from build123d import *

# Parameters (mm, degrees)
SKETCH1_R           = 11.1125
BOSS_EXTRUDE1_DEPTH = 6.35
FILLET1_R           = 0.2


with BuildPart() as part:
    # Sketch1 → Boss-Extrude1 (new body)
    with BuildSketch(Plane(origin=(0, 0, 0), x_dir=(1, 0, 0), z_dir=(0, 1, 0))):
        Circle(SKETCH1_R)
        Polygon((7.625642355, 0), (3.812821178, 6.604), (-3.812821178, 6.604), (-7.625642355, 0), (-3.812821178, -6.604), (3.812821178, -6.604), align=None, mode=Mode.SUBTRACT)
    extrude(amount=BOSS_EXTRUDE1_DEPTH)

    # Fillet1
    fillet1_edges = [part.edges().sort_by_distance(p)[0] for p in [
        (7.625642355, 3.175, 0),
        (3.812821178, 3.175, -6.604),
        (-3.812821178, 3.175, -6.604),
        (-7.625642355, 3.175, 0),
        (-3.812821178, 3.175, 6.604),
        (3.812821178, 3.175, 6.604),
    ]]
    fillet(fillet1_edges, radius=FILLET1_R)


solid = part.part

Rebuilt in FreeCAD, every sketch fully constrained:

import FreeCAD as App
import Part
import Sketcher
Q = App.Units.Quantity


def edges_at(feature, points):
    """Names of the edges that pass closest to the given points."""
    edges = feature.Shape.Edges
    near = lambda p: min(range(len(edges)), key=lambda i: edges[i].distToShape(Part.Vertex(*p))[0])
    return sorted({f"Edge{near(p) + 1}" for p in points})

doc = App.newDocument("Part")
body = doc.addObject("PartDesign::Body", "Body")

# Sketch on XZ plane
sketch1 = doc.addObject("Sketcher::SketchObject", "Sketch")
body.addObject(sketch1)
sketch1.AttachmentSupport = (doc.XZ_Plane, [""])
sketch1.MapMode = "FlatFace"
sketch1.addGeometry([
    Part.Circle(App.Vector(0, 0, 0), App.Vector(0, 0, 1), 11),  # 0
    Part.LineSegment(App.Vector(4, -7, 0), App.Vector(8, 0, 0)),  # 1
    Part.LineSegment(App.Vector(8, 0, 0), App.Vector(4, 7, 0)),  # 2
    Part.LineSegment(App.Vector(4, 7, 0), App.Vector(-4, 7, 0)),  # 3
    Part.LineSegment(App.Vector(-4, 7, 0), App.Vector(-8, 0, 0)),  # 4
    Part.LineSegment(App.Vector(-8, 0, 0), App.Vector(-4, -7, 0)),  # 5
    Part.LineSegment(App.Vector(-4, -7, 0), App.Vector(4, -7, 0)),  # 6
], False)
sketch1.addConstraint([
    Sketcher.Constraint("Coincident", 1, 2, 2, 1),
    Sketcher.Constraint("Coincident", 2, 2, 3, 1),
    Sketcher.Constraint("Coincident", 3, 2, 4, 1),
    Sketcher.Constraint("Coincident", 4, 2, 5, 1),
    Sketcher.Constraint("Coincident", 5, 2, 6, 1),
    Sketcher.Constraint("Coincident", 6, 2, 1, 1),
    Sketcher.Constraint("Horizontal", 3),
    Sketcher.Constraint("Horizontal", 6),
    Sketcher.Constraint("Coincident", 0, 3, -1, 1),
    Sketcher.Constraint("Symmetric", 1, 2, 4, 2, -1, 1),
    Sketcher.Constraint("Symmetric", 2, 2, 5, 2, -1, 1),
    Sketcher.Constraint("PointOnObject", 1, 2, -1),
    Sketcher.Constraint("Parallel", 1, 4),
    Sketcher.Constraint("Vertical", 3, 2, 5, 2),
    Sketcher.Constraint("Diameter", 0, Q("0.875 in")),
    Sketcher.Constraint("Angle", 1, Q("60 deg")),
    Sketcher.Constraint("DistanceY", -1, 1, 2, 2, Q("0.26 in")),
    Sketcher.Constraint("DistanceX", 3, 2, 3, 1, Q("7.625642 mm")),
])
pad1 = doc.addObject("PartDesign::Pad", "Pad")
body.addObject(pad1)
pad1.Profile = sketch1
pad1.Length = Q("0.25 in")
pad1.Reversed = True
doc.recompute()

fillet = doc.addObject("PartDesign::Fillet", "Fillet")
body.addObject(fillet)
fillet.Base = (pad1, edges_at(pad1, [
    (7.626, 3.175, 0),
    (3.813, 3.175, -6.604),
    (-3.813, 3.175, -6.604),
    (-7.626, 3.175, 0),
    (-3.813, 3.175, 6.604),
    (3.813, 3.175, 6.604),
]))
fillet.Radius = 0.2

doc.recompute()
